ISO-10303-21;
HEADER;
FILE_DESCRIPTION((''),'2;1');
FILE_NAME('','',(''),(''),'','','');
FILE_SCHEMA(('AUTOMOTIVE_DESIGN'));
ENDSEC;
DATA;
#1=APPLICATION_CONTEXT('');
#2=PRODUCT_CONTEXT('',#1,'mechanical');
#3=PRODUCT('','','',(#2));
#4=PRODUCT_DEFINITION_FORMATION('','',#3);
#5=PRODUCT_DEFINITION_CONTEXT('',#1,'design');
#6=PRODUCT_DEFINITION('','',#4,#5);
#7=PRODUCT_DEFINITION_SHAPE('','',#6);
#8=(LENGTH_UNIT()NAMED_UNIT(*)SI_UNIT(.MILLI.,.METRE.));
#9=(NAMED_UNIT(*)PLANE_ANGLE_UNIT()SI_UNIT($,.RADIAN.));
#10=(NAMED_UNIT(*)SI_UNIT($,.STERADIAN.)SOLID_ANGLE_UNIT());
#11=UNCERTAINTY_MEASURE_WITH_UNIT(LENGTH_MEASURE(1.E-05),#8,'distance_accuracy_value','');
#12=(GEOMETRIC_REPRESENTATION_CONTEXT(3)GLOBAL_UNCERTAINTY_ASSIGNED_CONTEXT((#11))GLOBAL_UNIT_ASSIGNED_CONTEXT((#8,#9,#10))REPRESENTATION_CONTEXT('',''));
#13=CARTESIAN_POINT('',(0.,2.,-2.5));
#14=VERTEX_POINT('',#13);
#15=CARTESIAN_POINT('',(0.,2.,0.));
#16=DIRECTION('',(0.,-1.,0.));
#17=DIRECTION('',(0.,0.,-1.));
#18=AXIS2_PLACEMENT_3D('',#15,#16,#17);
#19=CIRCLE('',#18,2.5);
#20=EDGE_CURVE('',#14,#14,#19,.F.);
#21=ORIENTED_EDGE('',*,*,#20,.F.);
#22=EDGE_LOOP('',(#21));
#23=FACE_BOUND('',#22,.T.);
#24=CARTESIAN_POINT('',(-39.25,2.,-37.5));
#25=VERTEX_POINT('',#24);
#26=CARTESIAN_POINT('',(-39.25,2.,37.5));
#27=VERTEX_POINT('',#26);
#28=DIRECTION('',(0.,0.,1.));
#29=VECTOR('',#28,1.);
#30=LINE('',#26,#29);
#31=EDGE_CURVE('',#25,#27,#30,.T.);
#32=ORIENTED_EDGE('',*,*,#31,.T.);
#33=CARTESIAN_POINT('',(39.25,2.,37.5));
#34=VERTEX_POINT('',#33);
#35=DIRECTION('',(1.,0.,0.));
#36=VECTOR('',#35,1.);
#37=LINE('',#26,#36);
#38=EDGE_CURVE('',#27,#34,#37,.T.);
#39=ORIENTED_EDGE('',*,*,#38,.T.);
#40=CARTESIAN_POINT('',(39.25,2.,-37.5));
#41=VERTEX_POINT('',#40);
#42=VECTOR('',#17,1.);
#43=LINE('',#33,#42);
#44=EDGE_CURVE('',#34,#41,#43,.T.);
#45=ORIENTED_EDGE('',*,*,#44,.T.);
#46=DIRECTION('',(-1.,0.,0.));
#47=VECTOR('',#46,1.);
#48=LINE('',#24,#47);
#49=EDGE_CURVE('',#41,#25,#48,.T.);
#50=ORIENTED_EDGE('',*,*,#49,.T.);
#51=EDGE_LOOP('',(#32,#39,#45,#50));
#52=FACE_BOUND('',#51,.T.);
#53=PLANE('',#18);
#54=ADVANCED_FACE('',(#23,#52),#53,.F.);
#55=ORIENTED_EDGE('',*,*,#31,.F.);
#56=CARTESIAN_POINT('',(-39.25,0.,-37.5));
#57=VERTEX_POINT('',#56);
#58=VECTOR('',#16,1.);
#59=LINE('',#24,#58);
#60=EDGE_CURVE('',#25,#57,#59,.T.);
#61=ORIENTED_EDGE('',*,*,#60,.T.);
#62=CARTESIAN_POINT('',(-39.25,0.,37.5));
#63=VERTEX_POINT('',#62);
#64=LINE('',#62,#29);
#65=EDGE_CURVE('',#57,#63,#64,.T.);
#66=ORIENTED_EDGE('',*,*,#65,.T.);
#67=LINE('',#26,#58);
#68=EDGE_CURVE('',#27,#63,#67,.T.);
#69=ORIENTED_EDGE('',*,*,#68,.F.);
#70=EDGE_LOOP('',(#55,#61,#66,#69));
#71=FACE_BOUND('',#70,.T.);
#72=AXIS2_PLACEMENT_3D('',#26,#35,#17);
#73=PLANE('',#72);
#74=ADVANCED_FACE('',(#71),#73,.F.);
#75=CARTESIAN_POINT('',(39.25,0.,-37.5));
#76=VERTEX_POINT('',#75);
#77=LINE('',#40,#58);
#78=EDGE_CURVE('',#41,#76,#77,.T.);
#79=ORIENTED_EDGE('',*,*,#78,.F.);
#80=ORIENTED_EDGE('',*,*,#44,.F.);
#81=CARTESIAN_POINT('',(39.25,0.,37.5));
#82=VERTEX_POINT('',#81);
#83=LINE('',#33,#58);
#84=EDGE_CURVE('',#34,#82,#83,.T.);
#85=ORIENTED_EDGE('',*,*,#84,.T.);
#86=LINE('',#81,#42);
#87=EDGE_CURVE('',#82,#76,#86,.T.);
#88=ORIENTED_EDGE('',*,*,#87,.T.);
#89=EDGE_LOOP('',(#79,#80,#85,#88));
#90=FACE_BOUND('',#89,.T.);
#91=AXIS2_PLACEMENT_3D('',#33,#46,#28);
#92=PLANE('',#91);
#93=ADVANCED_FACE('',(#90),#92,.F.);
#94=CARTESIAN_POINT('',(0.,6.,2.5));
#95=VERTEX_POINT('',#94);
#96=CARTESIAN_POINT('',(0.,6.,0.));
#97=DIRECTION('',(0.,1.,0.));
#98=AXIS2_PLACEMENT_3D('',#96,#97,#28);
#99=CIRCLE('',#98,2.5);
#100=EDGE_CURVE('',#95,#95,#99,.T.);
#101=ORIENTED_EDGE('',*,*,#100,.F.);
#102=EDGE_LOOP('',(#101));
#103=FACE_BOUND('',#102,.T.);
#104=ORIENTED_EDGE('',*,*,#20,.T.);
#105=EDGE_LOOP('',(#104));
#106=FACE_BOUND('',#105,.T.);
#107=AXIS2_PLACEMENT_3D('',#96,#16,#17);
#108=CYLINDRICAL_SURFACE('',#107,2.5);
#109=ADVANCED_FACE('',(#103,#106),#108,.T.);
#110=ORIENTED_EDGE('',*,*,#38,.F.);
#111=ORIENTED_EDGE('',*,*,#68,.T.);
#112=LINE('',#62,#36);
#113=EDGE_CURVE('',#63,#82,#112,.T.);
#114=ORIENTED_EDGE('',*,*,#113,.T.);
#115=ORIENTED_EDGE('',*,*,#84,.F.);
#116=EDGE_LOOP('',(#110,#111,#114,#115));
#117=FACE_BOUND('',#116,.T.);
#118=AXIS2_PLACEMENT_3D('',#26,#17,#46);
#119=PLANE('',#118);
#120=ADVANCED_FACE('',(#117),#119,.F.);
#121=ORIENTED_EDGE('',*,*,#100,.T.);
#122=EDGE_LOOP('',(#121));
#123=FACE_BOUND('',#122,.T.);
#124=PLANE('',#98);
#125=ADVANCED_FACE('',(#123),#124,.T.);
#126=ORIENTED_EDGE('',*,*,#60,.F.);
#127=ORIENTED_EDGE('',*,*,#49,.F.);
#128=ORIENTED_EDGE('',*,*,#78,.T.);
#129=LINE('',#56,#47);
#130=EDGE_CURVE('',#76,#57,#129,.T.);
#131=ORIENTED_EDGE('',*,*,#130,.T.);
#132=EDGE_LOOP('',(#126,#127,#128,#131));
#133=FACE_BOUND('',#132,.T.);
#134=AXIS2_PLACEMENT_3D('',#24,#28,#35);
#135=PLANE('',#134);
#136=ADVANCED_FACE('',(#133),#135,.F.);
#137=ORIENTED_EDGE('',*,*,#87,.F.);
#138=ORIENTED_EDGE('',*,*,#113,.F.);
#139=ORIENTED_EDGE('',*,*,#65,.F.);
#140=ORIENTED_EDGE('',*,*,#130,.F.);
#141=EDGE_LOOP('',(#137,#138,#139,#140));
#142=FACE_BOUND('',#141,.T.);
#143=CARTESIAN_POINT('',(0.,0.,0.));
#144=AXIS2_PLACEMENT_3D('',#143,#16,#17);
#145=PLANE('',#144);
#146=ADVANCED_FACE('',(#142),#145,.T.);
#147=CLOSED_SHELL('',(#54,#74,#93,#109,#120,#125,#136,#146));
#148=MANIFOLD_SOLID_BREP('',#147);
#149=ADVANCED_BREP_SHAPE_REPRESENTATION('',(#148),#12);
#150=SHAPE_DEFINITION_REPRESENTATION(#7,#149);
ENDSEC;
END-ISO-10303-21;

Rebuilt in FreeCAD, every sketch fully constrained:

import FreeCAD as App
import Part
import Sketcher
from FreeCAD import Vector


def add_polygon(sketch, points):
    """Adds a closed chain of lines whose ends are joined by coincident constraints."""
    first, n = sketch.GeometryCount, len(points)
    for a, b in zip(points, points[1:] + points[:1]):
        sketch.addGeometry(Part.LineSegment(App.Vector(*a, 0), App.Vector(*b, 0)), False)
    for i in range(n):
        sketch.addConstraint(Sketcher.Constraint("Coincident", first + i, 2, first + (i + 1) % n, 1))

doc = App.newDocument("Part")
body = doc.addObject("PartDesign::Body", "Body")

# Sketch on XZ plane
sketch1 = body.newObject("Sketcher::SketchObject", "Sketch")
sketch1.AttachmentSupport = (doc.getObject("XZ_Plane"), [""])
sketch1.MapMode = "FlatFace"
add_polygon(sketch1, [(-39, -38), (-39, 38), (39, 38), (39, -38)])  # lines 0-3
sketch1.addConstraint([
    Sketcher.Constraint("Vertical", 0),
    Sketcher.Constraint("Horizontal", 1),
    Sketcher.Constraint("Vertical", 2),
    Sketcher.Constraint("Horizontal", 3),
    Sketcher.Constraint("Symmetric", 0, 2, 2, 2, -1, 1),
    Sketcher.Constraint("DistanceY", 0, 1, 0, 2, 75.0),
    Sketcher.Constraint("DistanceX", 1, 1, 1, 2, 78.5),
])
pad1 = body.newObject("PartDesign::Pad", "Pad")
pad1.Profile = sketch1
pad1.Length = 2
pad1.Reversed = True

# Sketch on XZ plane
sketch2 = body.newObject("Sketcher::SketchObject", "Sketch001")
sketch2.AttachmentSupport = (doc.getObject("XZ_Plane"), [""])
sketch2.MapMode = "FlatFace"
sketch2.AttachmentOffset = App.Placement(Vector(0, 0, -2), App.Rotation())
sketch2.addGeometry(Part.Circle(Vector(0, 0, 0), Vector(0, 0, 1), 2.5), False)
sketch2.addConstraint([
    Sketcher.Constraint("Coincident", 0, 3, -1, 1),
    Sketcher.Constraint("Diameter", 0, 5.0),
])
pad2 = body.newObject("PartDesign::Pad", "Pad001")
pad2.Profile = sketch2
pad2.Length = 4
pad2.Reversed = True

doc.recompute()
